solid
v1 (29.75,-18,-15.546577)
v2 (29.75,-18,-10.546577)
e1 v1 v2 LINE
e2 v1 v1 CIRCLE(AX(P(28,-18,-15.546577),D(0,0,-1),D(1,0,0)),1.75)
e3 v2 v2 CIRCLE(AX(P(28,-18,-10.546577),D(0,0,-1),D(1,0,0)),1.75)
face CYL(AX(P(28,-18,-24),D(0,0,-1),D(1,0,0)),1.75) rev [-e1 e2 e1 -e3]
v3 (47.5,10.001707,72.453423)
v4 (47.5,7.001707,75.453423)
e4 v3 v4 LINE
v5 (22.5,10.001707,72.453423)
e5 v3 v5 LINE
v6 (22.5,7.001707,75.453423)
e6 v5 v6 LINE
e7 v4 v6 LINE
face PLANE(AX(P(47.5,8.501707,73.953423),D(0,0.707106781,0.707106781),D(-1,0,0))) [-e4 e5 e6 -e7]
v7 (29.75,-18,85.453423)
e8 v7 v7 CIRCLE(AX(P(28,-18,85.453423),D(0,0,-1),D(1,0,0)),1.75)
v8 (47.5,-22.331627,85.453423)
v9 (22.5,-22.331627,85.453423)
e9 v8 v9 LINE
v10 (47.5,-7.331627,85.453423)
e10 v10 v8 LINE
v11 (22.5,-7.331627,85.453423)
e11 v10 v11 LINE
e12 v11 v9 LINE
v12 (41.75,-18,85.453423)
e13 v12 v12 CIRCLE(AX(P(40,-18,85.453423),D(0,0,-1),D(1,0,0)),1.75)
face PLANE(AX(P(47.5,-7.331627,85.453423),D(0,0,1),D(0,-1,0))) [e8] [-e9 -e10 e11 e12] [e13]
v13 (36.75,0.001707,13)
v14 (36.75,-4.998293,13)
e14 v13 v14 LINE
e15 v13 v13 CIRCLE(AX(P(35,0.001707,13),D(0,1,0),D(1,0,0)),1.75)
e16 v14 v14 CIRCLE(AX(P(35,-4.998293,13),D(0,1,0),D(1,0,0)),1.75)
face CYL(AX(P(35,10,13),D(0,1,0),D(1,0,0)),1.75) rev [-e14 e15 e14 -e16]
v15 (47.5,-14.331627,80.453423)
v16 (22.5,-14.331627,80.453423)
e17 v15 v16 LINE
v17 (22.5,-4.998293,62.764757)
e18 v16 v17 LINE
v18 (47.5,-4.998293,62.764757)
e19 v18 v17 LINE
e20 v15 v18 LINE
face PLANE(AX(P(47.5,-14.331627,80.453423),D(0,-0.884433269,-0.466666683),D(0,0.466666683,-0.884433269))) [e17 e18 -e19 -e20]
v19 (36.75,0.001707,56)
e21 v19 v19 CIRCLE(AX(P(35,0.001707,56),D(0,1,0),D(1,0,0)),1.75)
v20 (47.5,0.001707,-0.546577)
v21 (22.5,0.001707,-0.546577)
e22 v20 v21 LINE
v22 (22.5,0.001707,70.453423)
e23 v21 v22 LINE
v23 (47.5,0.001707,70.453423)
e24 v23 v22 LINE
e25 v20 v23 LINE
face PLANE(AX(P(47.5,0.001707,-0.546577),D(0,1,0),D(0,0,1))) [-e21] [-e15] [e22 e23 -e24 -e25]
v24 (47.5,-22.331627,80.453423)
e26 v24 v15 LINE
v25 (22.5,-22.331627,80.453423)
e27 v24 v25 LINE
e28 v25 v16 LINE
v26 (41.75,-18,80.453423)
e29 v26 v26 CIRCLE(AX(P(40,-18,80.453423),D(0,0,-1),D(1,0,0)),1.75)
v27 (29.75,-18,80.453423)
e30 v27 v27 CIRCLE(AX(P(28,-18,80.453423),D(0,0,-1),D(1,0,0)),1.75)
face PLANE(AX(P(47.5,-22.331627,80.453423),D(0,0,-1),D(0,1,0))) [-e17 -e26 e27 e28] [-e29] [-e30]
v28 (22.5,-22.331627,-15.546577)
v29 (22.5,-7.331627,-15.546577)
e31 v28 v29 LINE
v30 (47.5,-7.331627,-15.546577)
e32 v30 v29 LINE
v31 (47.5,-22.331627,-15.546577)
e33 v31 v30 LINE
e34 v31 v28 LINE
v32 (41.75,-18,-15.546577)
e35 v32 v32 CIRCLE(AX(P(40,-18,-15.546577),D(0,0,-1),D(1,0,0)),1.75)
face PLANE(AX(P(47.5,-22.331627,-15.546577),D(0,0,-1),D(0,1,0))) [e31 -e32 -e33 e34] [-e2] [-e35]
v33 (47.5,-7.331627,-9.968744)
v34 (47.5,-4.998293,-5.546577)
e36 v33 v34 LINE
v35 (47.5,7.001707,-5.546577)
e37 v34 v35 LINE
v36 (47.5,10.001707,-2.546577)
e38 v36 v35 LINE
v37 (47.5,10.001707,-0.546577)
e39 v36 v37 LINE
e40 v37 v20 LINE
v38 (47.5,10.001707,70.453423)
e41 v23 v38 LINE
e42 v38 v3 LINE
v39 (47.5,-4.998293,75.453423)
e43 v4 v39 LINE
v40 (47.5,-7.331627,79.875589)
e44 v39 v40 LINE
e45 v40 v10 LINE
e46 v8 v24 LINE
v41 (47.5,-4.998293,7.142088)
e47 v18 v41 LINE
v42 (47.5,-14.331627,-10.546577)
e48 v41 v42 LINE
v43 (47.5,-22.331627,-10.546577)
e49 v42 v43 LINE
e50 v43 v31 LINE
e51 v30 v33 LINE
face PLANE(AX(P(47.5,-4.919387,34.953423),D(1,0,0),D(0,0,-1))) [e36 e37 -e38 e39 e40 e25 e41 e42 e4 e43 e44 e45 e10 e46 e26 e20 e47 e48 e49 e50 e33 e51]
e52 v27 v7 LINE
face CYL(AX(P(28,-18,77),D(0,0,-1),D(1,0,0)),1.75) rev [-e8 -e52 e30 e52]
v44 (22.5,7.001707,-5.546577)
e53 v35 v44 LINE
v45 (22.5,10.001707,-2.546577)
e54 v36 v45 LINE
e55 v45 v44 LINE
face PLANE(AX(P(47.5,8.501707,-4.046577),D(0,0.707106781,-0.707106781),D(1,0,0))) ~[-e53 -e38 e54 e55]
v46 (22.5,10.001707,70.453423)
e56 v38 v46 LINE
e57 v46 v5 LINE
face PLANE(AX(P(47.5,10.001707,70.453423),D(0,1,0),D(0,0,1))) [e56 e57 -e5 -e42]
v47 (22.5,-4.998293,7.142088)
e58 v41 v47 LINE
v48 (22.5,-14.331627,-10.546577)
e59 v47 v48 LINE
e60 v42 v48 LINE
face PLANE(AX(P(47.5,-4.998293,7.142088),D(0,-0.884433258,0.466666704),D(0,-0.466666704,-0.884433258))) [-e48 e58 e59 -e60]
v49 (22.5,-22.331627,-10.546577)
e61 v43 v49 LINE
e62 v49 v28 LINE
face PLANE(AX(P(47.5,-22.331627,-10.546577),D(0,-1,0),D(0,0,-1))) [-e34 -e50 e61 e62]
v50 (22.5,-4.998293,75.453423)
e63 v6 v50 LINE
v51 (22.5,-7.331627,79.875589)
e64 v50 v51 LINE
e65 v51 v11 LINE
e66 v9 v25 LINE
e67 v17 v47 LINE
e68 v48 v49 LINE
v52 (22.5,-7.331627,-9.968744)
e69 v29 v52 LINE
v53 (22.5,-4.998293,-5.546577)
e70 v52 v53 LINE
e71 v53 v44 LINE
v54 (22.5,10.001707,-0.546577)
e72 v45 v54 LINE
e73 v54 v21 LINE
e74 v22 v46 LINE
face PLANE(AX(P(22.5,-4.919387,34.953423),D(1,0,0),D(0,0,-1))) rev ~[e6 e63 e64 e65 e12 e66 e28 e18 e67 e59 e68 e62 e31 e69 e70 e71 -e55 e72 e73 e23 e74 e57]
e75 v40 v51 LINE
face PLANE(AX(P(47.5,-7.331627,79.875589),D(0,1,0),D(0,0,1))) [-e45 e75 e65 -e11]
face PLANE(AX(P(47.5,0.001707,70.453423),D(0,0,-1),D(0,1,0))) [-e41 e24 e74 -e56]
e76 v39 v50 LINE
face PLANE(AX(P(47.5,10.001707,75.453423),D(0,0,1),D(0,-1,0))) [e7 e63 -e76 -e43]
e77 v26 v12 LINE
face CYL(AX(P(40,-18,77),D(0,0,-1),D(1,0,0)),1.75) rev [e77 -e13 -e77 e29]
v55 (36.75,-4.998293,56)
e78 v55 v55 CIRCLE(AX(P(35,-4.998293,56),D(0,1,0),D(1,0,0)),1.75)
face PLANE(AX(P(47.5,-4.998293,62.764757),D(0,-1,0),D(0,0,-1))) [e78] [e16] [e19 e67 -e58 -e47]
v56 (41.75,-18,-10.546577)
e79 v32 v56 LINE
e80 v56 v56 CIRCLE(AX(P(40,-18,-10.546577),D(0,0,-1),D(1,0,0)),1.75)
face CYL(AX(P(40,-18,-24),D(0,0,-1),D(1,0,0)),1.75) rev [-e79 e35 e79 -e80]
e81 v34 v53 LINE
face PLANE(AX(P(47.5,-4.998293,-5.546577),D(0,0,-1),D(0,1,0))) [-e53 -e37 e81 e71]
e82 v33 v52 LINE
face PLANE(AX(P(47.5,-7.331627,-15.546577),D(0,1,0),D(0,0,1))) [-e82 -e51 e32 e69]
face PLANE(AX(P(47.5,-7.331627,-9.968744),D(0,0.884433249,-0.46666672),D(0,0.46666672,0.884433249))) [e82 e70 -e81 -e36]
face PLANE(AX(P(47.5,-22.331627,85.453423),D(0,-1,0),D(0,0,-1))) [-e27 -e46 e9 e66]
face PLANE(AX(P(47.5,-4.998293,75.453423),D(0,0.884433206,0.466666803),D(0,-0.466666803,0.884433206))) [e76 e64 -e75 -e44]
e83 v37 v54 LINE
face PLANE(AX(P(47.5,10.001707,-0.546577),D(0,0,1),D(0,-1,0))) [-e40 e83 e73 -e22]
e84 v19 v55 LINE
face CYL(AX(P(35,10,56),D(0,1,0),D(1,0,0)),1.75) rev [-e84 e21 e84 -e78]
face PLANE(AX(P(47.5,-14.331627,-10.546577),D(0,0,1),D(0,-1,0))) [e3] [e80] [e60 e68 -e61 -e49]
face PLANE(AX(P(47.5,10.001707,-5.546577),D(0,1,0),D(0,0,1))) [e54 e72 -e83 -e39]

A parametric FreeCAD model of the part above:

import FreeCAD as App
import Part
import Sketcher


def edges_at(feature, points):
    """Names of the edges that pass closest to the given points."""
    edges = feature.Shape.Edges
    near = lambda p: min(range(len(edges)), key=lambda i: edges[i].distToShape(Part.Vertex(*p))[0])
    return sorted({f"Edge{near(p) + 1}" for p in points})


def add_polygon(sketch, points):
    """Adds a closed chain of lines whose ends are joined by coincident constraints."""
    first, n = sketch.GeometryCount, len(points)
    for a, b in zip(points, points[1:] + points[:1]):
        sketch.addGeometry(Part.LineSegment(App.Vector(*a, 0), App.Vector(*b, 0)), False)
    for i in range(n):
        sketch.addConstraint(Sketcher.Constraint("Coincident", first + i, 2, first + (i + 1) % n, 1))

doc = App.newDocument("Part")
body = doc.addObject("PartDesign::Body", "Body")

sketch1 = doc.addObject("Sketcher::SketchObject", "Sketch")
body.addObject(sketch1)
sketch1.AttachmentSupport = (doc.XY_Plane, [""])
sketch1.MapMode = "FlatFace"
sketch1.AttachmentOffset = App.Placement(App.Vector(0, 0, -24), App.Rotation())
sketch1.addGeometry(Part.Circle(App.Vector(40, -18, 0), App.Vector(0, 0, 1), 1.75), False)
sketch1.addConstraint([
    Sketcher.Constraint("Diameter", 0, 3.5),
    Sketcher.Constraint("DistanceX", -1, 1, 0, 3, 40.0),
    Sketcher.Constraint("DistanceY", 0, 3, -1, 1, 18.0),
])
pad1 = doc.addObject("PartDesign::Pad", "Pad")
body.addObject(pad1)
pad1.Profile = sketch1
pad1.Length = 20
body2 = doc.addObject("PartDesign::Body", "Body001")

sketch2 = doc.addObject("Sketcher::SketchObject", "Sketch001")
body2.addObject(sketch2)
sketch2.AttachmentSupport = (doc.getObject("XY_Plane001"), [""])
sketch2.MapMode = "FlatFace"
sketch2.AttachmentOffset = App.Placement(App.Vector(0, 0, -24), App.Rotation())
sketch2.addGeometry(Part.Circle(App.Vector(28, -18, 0), App.Vector(0, 0, 1), 1.75), False)
sketch2.addConstraint([
    Sketcher.Constraint("Diameter", 0, 3.5),
    Sketcher.Constraint("DistanceX", -1, 1, 0, 3, 28.0),
    Sketcher.Constraint("DistanceY", 0, 3, -1, 1, 18.0),
])
pad2 = doc.addObject("PartDesign::Pad", "Pad001")
body2.addObject(pad2)
pad2.Profile = sketch2
pad2.Length = 20
body3 = doc.addObject("PartDesign::Body", "Body002")

sketch3 = doc.addObject("Sketcher::SketchObject", "Sketch002")
body3.addObject(sketch3)
sketch3.AttachmentSupport = (doc.getObject("XY_Plane002"), [""])
sketch3.MapMode = "FlatFace"
sketch3.AttachmentOffset = App.Placement(App.Vector(0, 0, 77), App.Rotation())
sketch3.addGeometry(Part.Circle(App.Vector(40, -18, 0), App.Vector(0, 0, 1), 1.75), False)
sketch3.addConstraint([
    Sketcher.Constraint("Diameter", 0, 3.5),
    Sketcher.Constraint("DistanceX", -1, 1, 0, 3, 40.0),
    Sketcher.Constraint("DistanceY", 0, 3, -1, 1, 18.0),
])
pad3 = doc.addObject("PartDesign::Pad", "Pad002")
body3.addObject(pad3)
pad3.Profile = sketch3
pad3.Length = 20
body4 = doc.addObject("PartDesign::Body", "Body003")

sketch4 = doc.addObject("Sketcher::SketchObject", "Sketch003")
body4.addObject(sketch4)
sketch4.AttachmentSupport = (doc.getObject("XY_Plane003"), [""])
sketch4.MapMode = "FlatFace"
sketch4.AttachmentOffset = App.Placement(App.Vector(0, 0, 77), App.Rotation())
sketch4.addGeometry(Part.Circle(App.Vector(28, -18, 0), App.Vector(0, 0, 1), 1.75), False)
sketch4.addConstraint([
    Sketcher.Constraint("Diameter", 0, 3.5),
    Sketcher.Constraint("DistanceX", -1, 1, 0, 3, 28.0),
    Sketcher.Constraint("DistanceY", 0, 3, -1, 1, 18.0),
])
pad4 = doc.addObject("PartDesign::Pad", "Pad003")
body4.addObject(pad4)
pad4.Profile = sketch4
pad4.Length = 20
body5 = doc.addObject("PartDesign::Body", "Body004")

sketch5 = doc.addObject("Sketcher::SketchObject", "Sketch004")
body5.addObject(sketch5)
sketch5.AttachmentSupport = (doc.getObject("XY_Plane004"), [""])
sketch5.MapMode = "FlatFace"
sketch5.addGeometry(Part.Circle(App.Vector(0, 0, 0), App.Vector(0, 0, 1), 1.75), False)
sketch5.addConstraint([
    Sketcher.Constraint("Coincident", 0, 3, -1, 1),
    Sketcher.Constraint("Diameter", 0, 3.5),
])
pad5 = doc.addObject("PartDesign::Pad", "Pad004")
body5.addObject(pad5)
pad5.Profile = sketch5
pad5.Length = 20
body6 = doc.addObject("PartDesign::Body", "Body005")
doc.recompute()

body5.Placement = App.Placement(App.Vector(0, 0, 0), App.Rotation(App.Vector(1, 0, 0), 90))
boolean = doc.addObject("PartDesign::Boolean", "Boolean")
body6.addObject(boolean)
boolean.Type = "Fuse"
boolean.addObjects([body5])
body7 = doc.addObject("PartDesign::Body", "Body006")
doc.recompute()

body6.Placement = App.Placement(App.Vector(35, 10, 13), App.Rotation(App.Vector(0, 0, 1), 0))
boolean2 = doc.addObject("PartDesign::Boolean", "Boolean001")
body7.addObject(boolean2)
boolean2.Type = "Fuse"
boolean2.addObjects([body6])
body8 = doc.addObject("PartDesign::Body", "Body007")

sketch6 = doc.addObject("Sketcher::SketchObject", "Sketch005")
body8.addObject(sketch6)
sketch6.AttachmentSupport = (doc.getObject("XY_Plane007"), [""])
sketch6.MapMode = "FlatFace"
sketch6.addGeometry(Part.Circle(App.Vector(0, 0, 0), App.Vector(0, 0, 1), 1.75), False)
sketch6.addConstraint([
    Sketcher.Constraint("Coincident", 0, 3, -1, 1),
    Sketcher.Constraint("Diameter", 0, 3.5),
])
pad6 = doc.addObject("PartDesign::Pad", "Pad005")
body8.addObject(pad6)
pad6.Profile = sketch6
pad6.Length = 20
body9 = doc.addObject("PartDesign::Body", "Body008")
doc.recompute()

body8.Placement = App.Placement(App.Vector(0, 0, 0), App.Rotation(App.Vector(1, 0, 0), 90))
boolean3 = doc.addObject("PartDesign::Boolean", "Boolean002")
body9.addObject(boolean3)
boolean3.Type = "Fuse"
boolean3.addObjects([body8])
body10 = doc.addObject("PartDesign::Body", "Body009")
doc.recompute()

body9.Placement = App.Placement(App.Vector(35, 10, 56), App.Rotation(App.Vector(0, 0, 1), 0))
boolean4 = doc.addObject("PartDesign::Boolean", "Boolean003")
body10.addObject(boolean4)
boolean4.Type = "Fuse"
boolean4.addObjects([body9])
body11 = doc.addObject("PartDesign::Body", "Body010")

sketch7 = doc.addObject("Sketcher::SketchObject", "Sketch006")
body11.addObject(sketch7)
sketch7.AttachmentSupport = (doc.getObject("YZ_Plane010"), [""])
sketch7.MapMode = "FlatFace"
sketch7.AttachmentOffset = App.Placement(App.Vector(0, 0, 47.5), App.Rotation())
add_polygon(sketch7, [(0.001707, -0.546577), (10.001707, -0.546577), (10.001707, -5.546577), (-4.998293, -5.546577), (-7.331627, -9.968744), (-7.331627, -15.546577), (-22.331627, -15.546577), (-22.331627, -10.546577), (-14.331627, -10.546577), (-4.998293, 7.142088), (-4.998293, 62.764757), (-14.331627, 80.453423), (-22.331627, 80.453423), (-22.331627, 85.453423), (-7.331627, 85.453423), (-7.331627, 79.875589), (-4.998293, 75.453423), (10.001707, 75.453423), (10.001707, 70.453423), (0.001707, 70.453423)])
sketch7.addConstraint([
    Sketcher.Constraint("Horizontal", 0),
    Sketcher.Constraint("Vertical", 1),
    Sketcher.Constraint("Horizontal", 2),
    Sketcher.Constraint("Vertical", 4),
    Sketcher.Constraint("Horizontal", 5),
    Sketcher.Constraint("Vertical", 6),
    Sketcher.Constraint("Horizontal", 7),
    Sketcher.Constraint("Vertical", 9),
    Sketcher.Constraint("Horizontal", 11),
    Sketcher.Constraint("Vertical", 12),
    Sketcher.Constraint("Horizontal", 13),
    Sketcher.Constraint("Vertical", 14),
    Sketcher.Constraint("Horizontal", 16),
    Sketcher.Constraint("Vertical", 17),
    Sketcher.Constraint("Horizontal", 18),
    Sketcher.Constraint("Vertical", 19),
    Sketcher.Constraint("Parallel", 3, 8),
    Sketcher.Constraint("Parallel", 10, 15),
    Sketcher.Constraint("Vertical", 2, 2, 8, 2),
    Sketcher.Constraint("Vertical", 7, 2, 10, 2),
    Sketcher.Constraint("Vertical", 6, 2, 11, 2),
    Sketcher.Constraint("Vertical", 4, 2, 13, 2),
    Sketcher.Constraint("Vertical", 9, 2, 15, 2),
    Sketcher.Constraint("Vertical", 1, 2, 16, 2),
    Sketcher.Constraint("Equal", 2, 5),
    Sketcher.Constraint("Equal", 1, 6),
    Sketcher.Constraint("Equal", 6, 12),
    Sketcher.Constraint("Equal", 4, 14),
    Sketcher.Constraint("Equal", 12, 17),
    Sketcher.Constraint("Equal", 8, 10),
    Sketcher.Constraint("DistanceX", 0, 1, 0, 2, 10.0),
    Sketcher.Constraint("DistanceX", 2, 2, 2, 1, 15.0),
    Sketcher.Constraint("DistanceX", 7, 1, 7, 2, 8.0),
    Sketcher.Constraint("DistanceY", 1, 2, 1, 1, 5.0),
    Sketcher.Constraint("DistanceY", 19, 2, 19, 1, 71.0),
    Sketcher.Constraint("Distance", 3, 5.000001),
    Sketcher.Constraint("Distance", 8, 20.0),
    Sketcher.Constraint("DistanceY", 4, 2, 2, 2, 10.0),
    Sketcher.Constraint("DistanceY", -1, 1, 8, 2, 7.142088),
    Sketcher.Constraint("DistanceX", -1, 1, 0, 2, 10.001707),
])
pad7 = doc.addObject("PartDesign::Pad", "Pad006")
body11.addObject(pad7)
pad7.Profile = sketch7
pad7.Length = 25
pad7.Reversed = True
doc.recompute()

boolean5 = doc.addObject("PartDesign::Boolean", "Boolean004")
body11.addObject(boolean5)
boolean5.Type = "Cut"
boolean5.addObjects([body10])
doc.recompute()

boolean6 = doc.addObject("PartDesign::Boolean", "Boolean005")
body11.addObject(boolean6)
boolean6.Type = "Cut"
boolean6.addObjects([body7])
doc.recompute()

boolean7 = doc.addObject("PartDesign::Boolean", "Boolean006")
body11.addObject(boolean7)
boolean7.Type = "Cut"
boolean7.addObjects([body4])
doc.recompute()

boolean8 = doc.addObject("PartDesign::Boolean", "Boolean007")
body11.addObject(boolean8)
boolean8.Type = "Cut"
boolean8.addObjects([body3])
doc.recompute()

boolean9 = doc.addObject("PartDesign::Boolean", "Boolean008")
body11.addObject(boolean9)
boolean9.Type = "Cut"
boolean9.addObjects([body2])
doc.recompute()

boolean10 = doc.addObject("PartDesign::Boolean", "Boolean009")
body11.addObject(boolean10)
boolean10.Type = "Cut"
boolean10.addObjects([body])
doc.recompute()

chamfer = doc.addObject("PartDesign::Chamfer", "Chamfer")
body11.addObject(chamfer)
chamfer.Base = (boolean10, edges_at(boolean10, [(35, 10.002, 75.453), (35, 10.002, -5.547)]))
chamfer.Size = 3

doc.recompute()
